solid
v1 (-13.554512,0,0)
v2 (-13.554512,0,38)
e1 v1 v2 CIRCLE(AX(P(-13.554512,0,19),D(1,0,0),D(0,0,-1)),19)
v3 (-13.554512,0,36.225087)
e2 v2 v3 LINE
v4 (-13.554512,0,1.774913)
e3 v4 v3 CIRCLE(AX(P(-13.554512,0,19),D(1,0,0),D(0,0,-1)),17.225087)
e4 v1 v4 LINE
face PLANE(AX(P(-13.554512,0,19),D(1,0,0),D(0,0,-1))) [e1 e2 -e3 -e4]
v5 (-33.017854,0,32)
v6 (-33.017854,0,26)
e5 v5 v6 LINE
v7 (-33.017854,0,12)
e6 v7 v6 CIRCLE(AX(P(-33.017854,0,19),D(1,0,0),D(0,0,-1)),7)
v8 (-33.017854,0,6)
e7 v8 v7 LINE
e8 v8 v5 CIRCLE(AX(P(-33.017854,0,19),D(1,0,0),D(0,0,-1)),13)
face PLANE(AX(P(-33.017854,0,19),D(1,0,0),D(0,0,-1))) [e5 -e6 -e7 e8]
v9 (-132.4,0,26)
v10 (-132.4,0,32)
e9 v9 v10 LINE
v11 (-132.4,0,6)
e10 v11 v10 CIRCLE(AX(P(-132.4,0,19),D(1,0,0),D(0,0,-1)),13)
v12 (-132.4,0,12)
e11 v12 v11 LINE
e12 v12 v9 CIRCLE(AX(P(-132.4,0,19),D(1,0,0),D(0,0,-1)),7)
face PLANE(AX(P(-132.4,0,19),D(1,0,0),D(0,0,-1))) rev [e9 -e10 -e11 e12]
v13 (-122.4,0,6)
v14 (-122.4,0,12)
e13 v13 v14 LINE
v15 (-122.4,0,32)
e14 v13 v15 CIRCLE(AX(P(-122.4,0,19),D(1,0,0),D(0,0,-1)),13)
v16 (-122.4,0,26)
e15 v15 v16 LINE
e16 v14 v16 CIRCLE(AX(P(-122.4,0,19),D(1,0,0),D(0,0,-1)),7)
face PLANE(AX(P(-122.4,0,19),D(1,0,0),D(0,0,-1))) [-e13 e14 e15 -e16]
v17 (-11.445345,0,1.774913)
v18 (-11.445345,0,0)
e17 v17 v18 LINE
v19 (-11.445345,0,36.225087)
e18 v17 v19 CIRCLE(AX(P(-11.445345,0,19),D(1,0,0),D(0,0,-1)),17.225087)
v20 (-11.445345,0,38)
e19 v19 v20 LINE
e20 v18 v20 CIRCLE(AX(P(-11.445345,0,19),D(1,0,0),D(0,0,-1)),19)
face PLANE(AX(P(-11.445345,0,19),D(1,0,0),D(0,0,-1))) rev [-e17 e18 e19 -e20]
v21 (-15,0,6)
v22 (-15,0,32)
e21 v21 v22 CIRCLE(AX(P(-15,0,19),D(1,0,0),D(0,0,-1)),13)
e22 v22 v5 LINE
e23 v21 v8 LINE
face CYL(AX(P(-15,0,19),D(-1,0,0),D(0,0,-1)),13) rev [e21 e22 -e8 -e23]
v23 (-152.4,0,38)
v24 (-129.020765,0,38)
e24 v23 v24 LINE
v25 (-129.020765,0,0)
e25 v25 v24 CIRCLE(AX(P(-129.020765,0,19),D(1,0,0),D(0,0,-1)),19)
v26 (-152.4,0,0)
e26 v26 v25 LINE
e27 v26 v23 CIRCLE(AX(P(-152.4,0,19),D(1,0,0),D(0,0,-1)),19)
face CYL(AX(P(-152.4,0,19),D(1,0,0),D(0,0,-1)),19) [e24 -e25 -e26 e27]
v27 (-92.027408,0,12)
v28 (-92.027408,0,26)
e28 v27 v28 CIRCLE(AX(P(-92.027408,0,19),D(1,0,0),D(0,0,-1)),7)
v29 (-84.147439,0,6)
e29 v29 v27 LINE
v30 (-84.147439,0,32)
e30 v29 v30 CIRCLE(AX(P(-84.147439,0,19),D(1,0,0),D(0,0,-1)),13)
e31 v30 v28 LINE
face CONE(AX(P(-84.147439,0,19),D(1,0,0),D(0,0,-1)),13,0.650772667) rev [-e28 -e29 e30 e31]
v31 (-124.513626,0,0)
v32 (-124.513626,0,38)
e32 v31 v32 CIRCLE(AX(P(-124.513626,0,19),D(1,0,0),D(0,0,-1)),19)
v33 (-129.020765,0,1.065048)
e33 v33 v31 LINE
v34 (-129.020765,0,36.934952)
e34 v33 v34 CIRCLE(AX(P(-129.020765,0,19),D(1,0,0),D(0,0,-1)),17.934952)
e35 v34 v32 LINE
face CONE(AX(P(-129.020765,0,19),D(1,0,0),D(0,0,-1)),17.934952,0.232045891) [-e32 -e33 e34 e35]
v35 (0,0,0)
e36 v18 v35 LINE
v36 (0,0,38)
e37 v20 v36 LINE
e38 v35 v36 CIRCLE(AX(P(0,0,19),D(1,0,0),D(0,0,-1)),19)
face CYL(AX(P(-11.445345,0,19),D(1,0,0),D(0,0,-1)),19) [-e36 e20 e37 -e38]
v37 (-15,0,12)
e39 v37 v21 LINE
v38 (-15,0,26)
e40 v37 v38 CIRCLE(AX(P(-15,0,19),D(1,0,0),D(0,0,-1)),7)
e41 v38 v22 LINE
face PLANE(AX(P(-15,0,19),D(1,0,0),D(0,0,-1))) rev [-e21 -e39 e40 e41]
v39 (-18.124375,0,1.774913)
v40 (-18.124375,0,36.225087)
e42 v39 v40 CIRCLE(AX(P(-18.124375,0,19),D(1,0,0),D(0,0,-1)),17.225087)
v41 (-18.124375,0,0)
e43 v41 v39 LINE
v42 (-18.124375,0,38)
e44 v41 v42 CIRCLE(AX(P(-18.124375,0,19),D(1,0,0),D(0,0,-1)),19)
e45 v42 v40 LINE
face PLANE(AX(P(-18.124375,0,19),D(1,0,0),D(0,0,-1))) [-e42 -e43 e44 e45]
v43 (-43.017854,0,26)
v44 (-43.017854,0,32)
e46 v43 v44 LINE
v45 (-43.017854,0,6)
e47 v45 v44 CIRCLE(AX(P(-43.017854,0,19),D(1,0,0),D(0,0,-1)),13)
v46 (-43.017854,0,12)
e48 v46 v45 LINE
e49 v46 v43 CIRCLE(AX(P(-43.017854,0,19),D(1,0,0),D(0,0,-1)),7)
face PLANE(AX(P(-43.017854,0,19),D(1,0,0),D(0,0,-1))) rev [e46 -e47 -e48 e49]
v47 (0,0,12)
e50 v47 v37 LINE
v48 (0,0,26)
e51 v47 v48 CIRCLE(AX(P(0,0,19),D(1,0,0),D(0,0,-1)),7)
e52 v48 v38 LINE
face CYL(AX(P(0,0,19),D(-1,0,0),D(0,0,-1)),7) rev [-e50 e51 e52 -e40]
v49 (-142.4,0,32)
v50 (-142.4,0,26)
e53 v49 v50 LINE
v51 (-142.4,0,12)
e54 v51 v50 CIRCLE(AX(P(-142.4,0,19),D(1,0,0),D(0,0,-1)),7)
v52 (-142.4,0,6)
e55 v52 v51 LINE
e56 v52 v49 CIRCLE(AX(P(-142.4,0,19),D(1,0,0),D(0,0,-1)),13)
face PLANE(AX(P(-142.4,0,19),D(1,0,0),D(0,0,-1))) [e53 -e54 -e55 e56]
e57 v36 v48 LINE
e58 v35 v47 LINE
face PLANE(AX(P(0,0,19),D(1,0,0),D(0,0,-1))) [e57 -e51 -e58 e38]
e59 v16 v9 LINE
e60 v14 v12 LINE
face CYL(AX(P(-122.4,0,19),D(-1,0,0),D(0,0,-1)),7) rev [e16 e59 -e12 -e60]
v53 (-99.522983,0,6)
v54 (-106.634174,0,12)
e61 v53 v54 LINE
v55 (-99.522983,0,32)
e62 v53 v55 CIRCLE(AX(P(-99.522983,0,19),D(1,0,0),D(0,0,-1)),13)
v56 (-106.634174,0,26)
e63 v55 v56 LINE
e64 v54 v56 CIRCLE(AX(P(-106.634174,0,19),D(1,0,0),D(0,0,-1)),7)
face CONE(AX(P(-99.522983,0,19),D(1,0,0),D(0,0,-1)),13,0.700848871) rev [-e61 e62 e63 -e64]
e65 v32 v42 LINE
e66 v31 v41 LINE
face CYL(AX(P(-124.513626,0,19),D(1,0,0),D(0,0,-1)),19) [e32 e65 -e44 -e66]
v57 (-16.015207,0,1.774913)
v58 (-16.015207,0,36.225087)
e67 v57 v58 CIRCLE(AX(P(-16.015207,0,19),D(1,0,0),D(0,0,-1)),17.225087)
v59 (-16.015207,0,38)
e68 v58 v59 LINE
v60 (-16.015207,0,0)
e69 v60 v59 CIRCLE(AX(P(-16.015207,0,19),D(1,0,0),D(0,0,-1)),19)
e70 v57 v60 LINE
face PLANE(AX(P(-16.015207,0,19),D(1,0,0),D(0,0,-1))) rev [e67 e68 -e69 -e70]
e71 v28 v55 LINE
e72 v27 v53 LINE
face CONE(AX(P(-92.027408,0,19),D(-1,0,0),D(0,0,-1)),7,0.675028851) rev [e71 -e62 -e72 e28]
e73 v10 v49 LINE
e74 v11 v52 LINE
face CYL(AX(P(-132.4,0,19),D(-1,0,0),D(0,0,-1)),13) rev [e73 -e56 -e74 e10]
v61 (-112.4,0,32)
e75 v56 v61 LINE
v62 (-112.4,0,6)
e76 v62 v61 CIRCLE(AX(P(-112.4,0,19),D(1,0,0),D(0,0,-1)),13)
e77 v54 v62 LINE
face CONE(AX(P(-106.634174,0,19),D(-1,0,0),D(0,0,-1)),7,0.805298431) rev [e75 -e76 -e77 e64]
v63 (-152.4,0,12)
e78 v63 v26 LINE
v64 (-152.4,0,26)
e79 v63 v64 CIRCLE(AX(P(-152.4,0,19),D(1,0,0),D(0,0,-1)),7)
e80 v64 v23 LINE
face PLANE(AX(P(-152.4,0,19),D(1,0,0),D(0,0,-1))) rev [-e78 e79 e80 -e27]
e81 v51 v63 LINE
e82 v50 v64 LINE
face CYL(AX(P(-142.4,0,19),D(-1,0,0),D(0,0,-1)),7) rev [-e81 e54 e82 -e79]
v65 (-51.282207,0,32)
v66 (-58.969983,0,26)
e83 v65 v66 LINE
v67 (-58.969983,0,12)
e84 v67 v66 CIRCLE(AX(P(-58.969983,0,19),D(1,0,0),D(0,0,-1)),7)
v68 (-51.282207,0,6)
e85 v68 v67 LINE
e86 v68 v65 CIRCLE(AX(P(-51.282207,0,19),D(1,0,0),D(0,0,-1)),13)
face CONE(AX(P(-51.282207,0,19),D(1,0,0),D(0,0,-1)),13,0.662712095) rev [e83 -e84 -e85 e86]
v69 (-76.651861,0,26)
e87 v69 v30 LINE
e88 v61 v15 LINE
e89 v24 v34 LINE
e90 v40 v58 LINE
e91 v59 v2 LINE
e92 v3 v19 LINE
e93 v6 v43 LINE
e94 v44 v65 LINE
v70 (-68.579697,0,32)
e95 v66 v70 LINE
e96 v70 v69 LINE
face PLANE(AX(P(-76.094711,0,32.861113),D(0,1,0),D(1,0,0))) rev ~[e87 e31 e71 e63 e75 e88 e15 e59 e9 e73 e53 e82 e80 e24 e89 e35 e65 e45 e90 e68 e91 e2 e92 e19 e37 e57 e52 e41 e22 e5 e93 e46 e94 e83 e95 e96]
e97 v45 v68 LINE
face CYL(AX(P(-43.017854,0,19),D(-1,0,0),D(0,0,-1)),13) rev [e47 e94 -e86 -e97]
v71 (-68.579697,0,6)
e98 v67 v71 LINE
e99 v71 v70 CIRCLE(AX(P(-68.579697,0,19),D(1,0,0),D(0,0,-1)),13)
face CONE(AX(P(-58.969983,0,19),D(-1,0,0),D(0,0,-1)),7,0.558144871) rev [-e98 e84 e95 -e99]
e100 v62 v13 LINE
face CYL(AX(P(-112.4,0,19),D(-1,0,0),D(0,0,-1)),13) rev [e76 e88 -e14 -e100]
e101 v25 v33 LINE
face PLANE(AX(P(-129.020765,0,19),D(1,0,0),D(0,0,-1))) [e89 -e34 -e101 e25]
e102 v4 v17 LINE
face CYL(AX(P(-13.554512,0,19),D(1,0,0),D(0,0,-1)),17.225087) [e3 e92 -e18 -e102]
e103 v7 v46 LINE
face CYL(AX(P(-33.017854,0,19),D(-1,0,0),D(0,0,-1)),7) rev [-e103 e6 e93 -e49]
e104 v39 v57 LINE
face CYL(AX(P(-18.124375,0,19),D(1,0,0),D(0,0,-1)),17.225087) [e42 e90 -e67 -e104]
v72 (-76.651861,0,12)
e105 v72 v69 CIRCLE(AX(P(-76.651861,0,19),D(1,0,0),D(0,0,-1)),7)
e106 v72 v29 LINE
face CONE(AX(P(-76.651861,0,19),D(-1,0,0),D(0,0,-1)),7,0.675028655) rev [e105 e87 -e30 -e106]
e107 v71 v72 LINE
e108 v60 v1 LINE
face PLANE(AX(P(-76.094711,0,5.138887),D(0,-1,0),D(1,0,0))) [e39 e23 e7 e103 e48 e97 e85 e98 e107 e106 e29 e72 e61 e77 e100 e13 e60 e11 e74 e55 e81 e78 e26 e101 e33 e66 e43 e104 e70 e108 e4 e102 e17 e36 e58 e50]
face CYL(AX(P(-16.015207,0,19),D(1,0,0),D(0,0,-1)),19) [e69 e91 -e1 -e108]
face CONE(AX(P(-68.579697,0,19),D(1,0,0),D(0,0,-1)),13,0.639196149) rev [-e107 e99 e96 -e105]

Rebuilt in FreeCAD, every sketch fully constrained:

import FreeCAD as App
import Part
import Sketcher

V = App.Vector
Q = App.Units.Quantity


def add_polygon(sketch, points):
    """Adds a closed chain of lines whose ends are joined by coincident constraints."""
    first, n = sketch.GeometryCount, len(points)
    for a, b in zip(points, points[1:] + points[:1]):
        sketch.addGeometry(Part.LineSegment(App.Vector(*a, 0), App.Vector(*b, 0)), False)
    for i in range(n):
        sketch.addConstraint(Sketcher.Constraint("Coincident", first + i, 2, first + (i + 1) % n, 1))

doc = App.newDocument("Part")
body = doc.addObject("PartDesign::Body", "Body")

# Sketch on XZ plane
sketch1 = body.newObject("Sketcher::SketchObject", "Sketch")
sketch1.AttachmentSupport = (doc.getObject("XZ_Plane"), [""])
sketch1.MapMode = "FlatFace"
add_polygon(sketch1, [(-11.4, 0), (0, 0), (0, 12), (-15, 12), (-15, 6), (-33, 6), (-33, 12), (-43, 12), (-43, 6), (-51.3, 6), (-59, 12), (-68.6, 6), (-76.7, 12), (-84.1, 6), (-92, 12), (-99.5, 6), (-106.6, 12), (-112.4, 6), (-122.4, 6), (-122.4, 12), (-132.4, 12), (-132.4, 6), (-142.4, 6), (-142.4, 12), (-152.4, 12), (-152.4, 0), (-129, 0), (-129, 1.1), (-124.5, 0), (-18.1, 0), (-18.1, 1.8), (-16, 1.8), (-16, 0), (-13.6, 0), (-13.6, 1.8), (-11.4, 1.8)])  # lines 0-35
sketch1.addGeometry(Part.LineSegment(V(-152.4, 19, 0), V(0, 19, 0)), True)  # axis
sketch1.addConstraint([
    Sketcher.Constraint("Horizontal", 0),
    Sketcher.Constraint("Vertical", 1),
    Sketcher.Constraint("Horizontal", 2),
    Sketcher.Constraint("Vertical", 3),
    Sketcher.Constraint("Horizontal", 4),
    Sketcher.Constraint("Vertical", 5),
    Sketcher.Constraint("Horizontal", 6),
    Sketcher.Constraint("Vertical", 7),
    Sketcher.Constraint("Horizontal", 8),
    Sketcher.Constraint("Horizontal", 17),
    Sketcher.Constraint("Vertical", 18),
    Sketcher.Constraint("Horizontal", 19),
    Sketcher.Constraint("Vertical", 20),
    Sketcher.Constraint("Horizontal", 21),
    Sketcher.Constraint("Vertical", 22),
    Sketcher.Constraint("Horizontal", 23),
    Sketcher.Constraint("Vertical", 24),
    Sketcher.Constraint("Horizontal", 25),
    Sketcher.Constraint("Vertical", 26),
    Sketcher.Constraint("Horizontal", 28),
    Sketcher.Constraint("Vertical", 29),
    Sketcher.Constraint("Horizontal", 30),
    Sketcher.Constraint("Vertical", 31),
    Sketcher.Constraint("Horizontal", 32),
    Sketcher.Constraint("Vertical", 33),
    Sketcher.Constraint("Horizontal", 34),
    Sketcher.Constraint("Vertical", 35),
    Sketcher.Constraint("Horizontal", 36),
    Sketcher.Constraint("Coincident", 0, 2, -1, 1),
    Sketcher.Constraint("PointOnObject", 24, 2, -1),
    Sketcher.Constraint("PointOnObject", 27, 2, -1),
    Sketcher.Constraint("PointOnObject", 31, 2, -1),
    Sketcher.Constraint("PointOnObject", 36, 2, -2),
    Sketcher.Constraint("Parallel", 12, 14),
    Sketcher.Constraint("Horizontal", 2, 2, 5, 2),
    Sketcher.Constraint("Horizontal", 4, 2, 7, 2),
    Sketcher.Constraint("Horizontal", 6, 2, 9, 2),
    Sketcher.Constraint("Horizontal", 8, 2, 10, 2),
    Sketcher.Constraint("Horizontal", 9, 2, 11, 2),
    Sketcher.Constraint("Horizontal", 10, 2, 12, 2),
    Sketcher.Constraint("Horizontal", 11, 2, 13, 2),
    Sketcher.Constraint("Horizontal", 12, 2, 14, 2),
    Sketcher.Constraint("Horizontal", 13, 2, 15, 2),
    Sketcher.Constraint("Horizontal", 14, 2, 16, 2),
    Sketcher.Constraint("Horizontal", 15, 2, 18, 2),
    Sketcher.Constraint("Horizontal", 17, 2, 20, 2),
    Sketcher.Constraint("Horizontal", 19, 2, 22, 2),
    Sketcher.Constraint("Horizontal", 30, 2, 33, 2),
    Sketcher.Constraint("Vertical", 24, 2, 36, 1),
    Sketcher.Constraint("Equal", 6, 17),
    Sketcher.Constraint("Equal", 17, 19),
    Sketcher.Constraint("Equal", 19, 21),
    Sketcher.Constraint("Equal", 21, 23),
    Sketcher.Constraint("Equal", 30, 34),
    Sketcher.Constraint("DistanceX", 2, 2, 2, 1, Q("15 mm")),
    Sketcher.Constraint("DistanceX", 6, 2, 6, 1, Q("10 mm")),
    Sketcher.Constraint("DistanceY", 1, 1, 1, 2, Q("12 mm")),
    Sketcher.Constraint("DistanceY", 3, 2, 3, 1, Q("6 mm")),
    Sketcher.Constraint("DistanceX", 36, 1, 36, 2, Q("152.4 mm")),
    Sketcher.Constraint("DistanceY", -1, 1, 36, 1, Q("19 mm")),
    Sketcher.Constraint("DistanceX", 14, 2, 9, 2, Q("40.553 mm")),
    Sketcher.Constraint("DistanceX", 28, 1, 28, 2, Q("106.389251 mm")),
    Sketcher.Constraint("DistanceX", 30, 1, 30, 2, Q("2.109168 mm")),
    Sketcher.Constraint("DistanceX", 13, 2, 8, 2, Q("40.745201 mm")),
    Sketcher.Constraint("Distance", 9, Q("9.75202 mm")),
    Sketcher.Constraint("Distance", 15, Q("9.304248 mm")),
    Sketcher.Constraint("DistanceX", 0, 1, 0, 2, Q("11.445345 mm")),
    Sketcher.Constraint("DistanceX", 4, 2, 4, 1, Q("18.017854 mm")),
    Sketcher.Constraint("DistanceX", 8, 2, 8, 1, Q("8.264353 mm")),
    Sketcher.Constraint("DistanceX", 25, 1, 25, 2, Q("23.379235 mm")),
    Sketcher.Constraint("DistanceX", 32, 1, 32, 2, Q("2.460695 mm")),
    Sketcher.Constraint("DistanceY", 26, 1, 26, 2, Q("1.065048 mm")),
    Sketcher.Constraint("DistanceY", 29, 1, 29, 2, Q("1.774913 mm")),
    Sketcher.Constraint("DistanceX", 11, 2, -1, 1, Q("76.651861 mm")),
    Sketcher.Constraint("DistanceX", 10, 2, 8, 2, Q("17.29749 mm")),
])
revolution = body.newObject("PartDesign::Revolution", "Revolution")
revolution.Profile = sketch1
revolution.ReferenceAxis = (sketch1, ["Axis0"])
revolution.Angle = 180

doc.recompute()
